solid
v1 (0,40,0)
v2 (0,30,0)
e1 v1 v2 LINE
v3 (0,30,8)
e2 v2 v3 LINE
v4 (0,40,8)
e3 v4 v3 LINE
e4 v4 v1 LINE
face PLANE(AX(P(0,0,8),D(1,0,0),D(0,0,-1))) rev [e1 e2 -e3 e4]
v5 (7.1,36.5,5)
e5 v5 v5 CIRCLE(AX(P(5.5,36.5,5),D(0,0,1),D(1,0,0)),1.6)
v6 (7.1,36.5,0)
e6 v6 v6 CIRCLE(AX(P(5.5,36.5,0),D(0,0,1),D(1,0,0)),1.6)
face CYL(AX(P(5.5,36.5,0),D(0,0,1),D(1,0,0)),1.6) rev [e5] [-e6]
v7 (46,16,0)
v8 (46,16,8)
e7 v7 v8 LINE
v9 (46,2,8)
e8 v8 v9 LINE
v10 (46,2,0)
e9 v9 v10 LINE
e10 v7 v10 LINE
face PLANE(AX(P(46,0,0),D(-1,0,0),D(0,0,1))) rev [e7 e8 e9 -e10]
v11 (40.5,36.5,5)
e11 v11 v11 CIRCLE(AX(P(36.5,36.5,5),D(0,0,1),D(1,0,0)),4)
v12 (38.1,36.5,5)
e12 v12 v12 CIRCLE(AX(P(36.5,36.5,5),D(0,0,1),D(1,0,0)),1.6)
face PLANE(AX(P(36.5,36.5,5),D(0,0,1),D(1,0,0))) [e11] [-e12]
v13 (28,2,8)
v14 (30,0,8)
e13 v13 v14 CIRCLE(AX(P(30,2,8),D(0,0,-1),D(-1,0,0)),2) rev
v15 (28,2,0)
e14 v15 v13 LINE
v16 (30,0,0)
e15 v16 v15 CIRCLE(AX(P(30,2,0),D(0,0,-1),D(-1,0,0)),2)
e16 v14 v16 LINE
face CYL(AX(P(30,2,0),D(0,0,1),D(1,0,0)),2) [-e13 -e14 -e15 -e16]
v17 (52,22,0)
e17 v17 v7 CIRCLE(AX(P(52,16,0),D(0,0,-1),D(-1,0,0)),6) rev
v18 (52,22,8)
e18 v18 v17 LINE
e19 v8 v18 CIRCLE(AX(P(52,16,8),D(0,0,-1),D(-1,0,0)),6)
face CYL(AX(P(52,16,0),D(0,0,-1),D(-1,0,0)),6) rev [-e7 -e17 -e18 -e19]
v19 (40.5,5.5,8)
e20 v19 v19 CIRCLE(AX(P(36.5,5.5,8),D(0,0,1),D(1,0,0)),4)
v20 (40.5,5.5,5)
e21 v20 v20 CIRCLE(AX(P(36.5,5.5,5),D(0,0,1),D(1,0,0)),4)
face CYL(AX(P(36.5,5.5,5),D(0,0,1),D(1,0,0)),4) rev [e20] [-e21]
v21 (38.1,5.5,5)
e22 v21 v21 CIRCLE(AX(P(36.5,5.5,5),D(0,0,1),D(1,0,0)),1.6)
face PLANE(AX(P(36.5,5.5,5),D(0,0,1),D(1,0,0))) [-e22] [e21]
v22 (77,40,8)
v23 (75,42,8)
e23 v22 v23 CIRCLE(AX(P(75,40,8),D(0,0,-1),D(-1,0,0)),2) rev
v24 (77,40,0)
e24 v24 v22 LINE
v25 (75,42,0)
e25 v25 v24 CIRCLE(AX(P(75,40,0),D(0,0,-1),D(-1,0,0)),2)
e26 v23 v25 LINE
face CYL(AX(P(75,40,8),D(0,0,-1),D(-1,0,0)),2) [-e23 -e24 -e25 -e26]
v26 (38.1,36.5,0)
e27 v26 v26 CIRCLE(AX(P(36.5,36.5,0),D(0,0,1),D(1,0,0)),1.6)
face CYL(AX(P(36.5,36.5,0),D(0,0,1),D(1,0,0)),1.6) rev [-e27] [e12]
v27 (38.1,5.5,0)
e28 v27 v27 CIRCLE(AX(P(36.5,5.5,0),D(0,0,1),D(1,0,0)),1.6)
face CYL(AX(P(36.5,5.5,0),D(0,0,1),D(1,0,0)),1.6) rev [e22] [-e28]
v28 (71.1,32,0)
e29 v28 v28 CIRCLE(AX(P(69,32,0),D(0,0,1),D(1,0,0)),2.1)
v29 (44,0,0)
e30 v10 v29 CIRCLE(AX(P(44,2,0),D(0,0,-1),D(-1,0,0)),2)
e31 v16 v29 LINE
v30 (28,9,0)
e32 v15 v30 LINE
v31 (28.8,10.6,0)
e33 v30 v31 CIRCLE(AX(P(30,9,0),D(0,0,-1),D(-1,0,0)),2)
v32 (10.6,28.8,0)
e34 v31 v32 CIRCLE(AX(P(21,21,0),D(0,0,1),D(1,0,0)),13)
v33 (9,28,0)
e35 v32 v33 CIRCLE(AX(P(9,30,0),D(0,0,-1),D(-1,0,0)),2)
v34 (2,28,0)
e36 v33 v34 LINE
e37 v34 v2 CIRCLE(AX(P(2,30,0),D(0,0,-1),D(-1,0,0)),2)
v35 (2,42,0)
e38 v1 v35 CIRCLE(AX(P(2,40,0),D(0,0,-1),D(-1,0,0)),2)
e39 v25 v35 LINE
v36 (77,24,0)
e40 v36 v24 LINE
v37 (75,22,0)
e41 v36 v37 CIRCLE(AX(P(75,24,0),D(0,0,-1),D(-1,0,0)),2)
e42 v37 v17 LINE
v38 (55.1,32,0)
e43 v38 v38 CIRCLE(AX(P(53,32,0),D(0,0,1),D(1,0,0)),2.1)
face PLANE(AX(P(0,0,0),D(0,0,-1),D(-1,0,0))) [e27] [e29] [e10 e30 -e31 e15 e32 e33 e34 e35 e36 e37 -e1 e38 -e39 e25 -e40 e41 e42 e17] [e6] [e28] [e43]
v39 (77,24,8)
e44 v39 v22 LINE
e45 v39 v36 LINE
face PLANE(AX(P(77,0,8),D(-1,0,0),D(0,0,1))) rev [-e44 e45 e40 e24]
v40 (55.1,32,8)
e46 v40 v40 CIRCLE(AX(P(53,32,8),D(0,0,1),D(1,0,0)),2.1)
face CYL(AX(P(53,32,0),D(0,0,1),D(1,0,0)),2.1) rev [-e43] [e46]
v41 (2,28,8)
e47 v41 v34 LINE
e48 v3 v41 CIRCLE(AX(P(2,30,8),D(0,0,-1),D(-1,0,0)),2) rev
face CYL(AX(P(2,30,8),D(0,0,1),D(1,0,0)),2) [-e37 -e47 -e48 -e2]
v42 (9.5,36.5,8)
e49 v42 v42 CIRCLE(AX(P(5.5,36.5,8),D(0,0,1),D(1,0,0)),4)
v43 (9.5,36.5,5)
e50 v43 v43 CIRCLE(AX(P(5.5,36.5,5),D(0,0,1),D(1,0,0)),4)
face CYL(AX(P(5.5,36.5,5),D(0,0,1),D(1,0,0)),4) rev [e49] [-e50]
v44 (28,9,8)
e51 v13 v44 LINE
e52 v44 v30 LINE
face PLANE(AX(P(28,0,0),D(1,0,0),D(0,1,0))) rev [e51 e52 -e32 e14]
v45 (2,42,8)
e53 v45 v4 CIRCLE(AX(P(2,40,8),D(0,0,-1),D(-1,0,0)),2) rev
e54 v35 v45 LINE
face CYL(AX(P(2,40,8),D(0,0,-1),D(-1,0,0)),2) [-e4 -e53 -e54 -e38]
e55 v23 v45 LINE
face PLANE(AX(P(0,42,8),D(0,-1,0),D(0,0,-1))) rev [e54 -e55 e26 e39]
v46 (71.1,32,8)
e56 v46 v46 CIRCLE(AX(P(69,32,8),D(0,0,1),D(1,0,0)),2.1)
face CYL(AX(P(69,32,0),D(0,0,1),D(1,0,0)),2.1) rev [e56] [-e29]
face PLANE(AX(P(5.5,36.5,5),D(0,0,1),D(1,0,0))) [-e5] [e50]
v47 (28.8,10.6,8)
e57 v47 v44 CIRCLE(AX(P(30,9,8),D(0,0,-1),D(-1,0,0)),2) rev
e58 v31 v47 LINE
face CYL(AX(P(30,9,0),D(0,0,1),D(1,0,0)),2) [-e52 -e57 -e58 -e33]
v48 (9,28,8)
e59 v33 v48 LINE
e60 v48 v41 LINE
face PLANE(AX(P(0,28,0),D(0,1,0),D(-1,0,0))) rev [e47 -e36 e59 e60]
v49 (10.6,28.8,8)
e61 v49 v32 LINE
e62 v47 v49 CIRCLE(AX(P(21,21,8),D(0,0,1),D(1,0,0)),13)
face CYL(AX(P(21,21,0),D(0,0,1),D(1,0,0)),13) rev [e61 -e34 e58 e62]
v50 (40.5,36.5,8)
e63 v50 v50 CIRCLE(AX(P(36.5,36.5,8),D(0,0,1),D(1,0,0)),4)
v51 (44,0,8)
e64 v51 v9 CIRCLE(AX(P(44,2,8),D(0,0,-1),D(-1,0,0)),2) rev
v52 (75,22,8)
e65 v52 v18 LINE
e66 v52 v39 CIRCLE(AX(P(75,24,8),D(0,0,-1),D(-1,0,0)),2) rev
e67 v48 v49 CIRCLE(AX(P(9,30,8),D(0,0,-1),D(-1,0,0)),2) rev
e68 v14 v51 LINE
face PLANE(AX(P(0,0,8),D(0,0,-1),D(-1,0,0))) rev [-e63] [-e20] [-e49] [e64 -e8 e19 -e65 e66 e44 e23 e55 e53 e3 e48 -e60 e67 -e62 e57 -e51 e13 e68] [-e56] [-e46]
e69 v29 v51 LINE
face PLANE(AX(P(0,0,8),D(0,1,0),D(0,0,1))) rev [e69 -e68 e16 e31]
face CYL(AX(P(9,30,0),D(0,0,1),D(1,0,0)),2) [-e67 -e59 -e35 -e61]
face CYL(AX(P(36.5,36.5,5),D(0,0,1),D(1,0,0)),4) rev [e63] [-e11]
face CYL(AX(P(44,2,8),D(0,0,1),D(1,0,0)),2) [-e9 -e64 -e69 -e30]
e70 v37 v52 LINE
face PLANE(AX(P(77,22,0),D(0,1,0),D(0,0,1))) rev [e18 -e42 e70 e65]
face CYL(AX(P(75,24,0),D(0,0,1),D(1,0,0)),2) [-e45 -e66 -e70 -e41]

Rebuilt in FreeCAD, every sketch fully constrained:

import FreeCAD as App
import Part
import Sketcher
from FreeCAD import Vector
Q = App.Units.Quantity


def edges_at(feature, points):
    """Names of the edges that pass closest to the given points."""
    edges = feature.Shape.Edges
    near = lambda p: min(range(len(edges)), key=lambda i: edges[i].distToShape(Part.Vertex(*p))[0])
    return sorted({f"Edge{near(p) + 1}" for p in points})

doc = App.newDocument("Part")
body = doc.addObject("PartDesign::Body", "Body")

# Sketch on XY plane
sketch1 = doc.addObject("Sketcher::SketchObject", "Sketch")
body.addObject(sketch1)
sketch1.AttachmentSupport = (doc.XY_Plane, [""])
sketch1.MapMode = "FlatFace"
sketch1.addGeometry(Part.LineSegment(Vector(0, 42, 0), Vector(0, 0, 0)), False)
sketch1.addGeometry(Part.LineSegment(Vector(0, 0, 0), Vector(77, 0, 0)), False)
sketch1.addGeometry(Part.LineSegment(Vector(77, 0, 0), Vector(77, 42, 0)), False)
sketch1.addGeometry(Part.LineSegment(Vector(77, 42, 0), Vector(0, 42, 0)), False)
sketch1.addConstraint(Sketcher.Constraint("Coincident", 0, 2, 1, 1))
sketch1.addConstraint(Sketcher.Constraint("Coincident", 1, 2, 2, 1))
sketch1.addConstraint(Sketcher.Constraint("Coincident", 2, 2, 3, 1))
sketch1.addConstraint(Sketcher.Constraint("Coincident", 3, 2, 0, 1))
sketch1.addConstraint(Sketcher.Constraint("Vertical", 0))
sketch1.addConstraint(Sketcher.Constraint("Horizontal", 1))
sketch1.addConstraint(Sketcher.Constraint("Vertical", 2))
sketch1.addConstraint(Sketcher.Constraint("Horizontal", 3))
sketch1.addConstraint(Sketcher.Constraint("Coincident", 0, 2, -1, 1))
sketch1.addConstraint(Sketcher.Constraint("DistanceX", 1, 1, 1, 2, Q("77 mm")))
sketch1.addConstraint(Sketcher.Constraint("DistanceY", 0, 2, 0, 1, Q("42 mm")))
pad1 = doc.addObject("PartDesign::Pad", "Pad")
body.addObject(pad1)
pad1.Profile = sketch1
pad1.Length = 8

# Sketch on XY plane
sketch2 = doc.addObject("Sketcher::SketchObject", "Sketch001")
body.addObject(sketch2)
sketch2.AttachmentSupport = (doc.XY_Plane, [""])
sketch2.MapMode = "FlatFace"
sketch2.AttachmentOffset = App.Placement(Vector(0, 0, 8), App.Rotation())
sketch2.addGeometry(Part.Circle(Vector(5.5, 36.5, 0), Vector(0, 0, 1), 4), False)
sketch2.addGeometry(Part.Circle(Vector(36.5, 36.5, 0), Vector(0, 0, 1), 4), False)
sketch2.addGeometry(Part.Circle(Vector(36.5, 5.5, 0), Vector(0, 0, 1), 4), False)
sketch2.addConstraint(Sketcher.Constraint("Equal", 0, 1))
sketch2.addConstraint(Sketcher.Constraint("Equal", 1, 2))
sketch2.addConstraint(Sketcher.Constraint("Horizontal", 0, 3, 1, 3))
sketch2.addConstraint(Sketcher.Constraint("Vertical", 1, 3, 2, 3))
sketch2.addConstraint(Sketcher.Constraint("Diameter", 0, Q("8 mm")))
sketch2.addConstraint(Sketcher.Constraint("DistanceX", 0, 3, 1, 3, Q("31 mm")))
sketch2.addConstraint(Sketcher.Constraint("DistanceY", 2, 3, 1, 3, Q("31 mm")))
sketch2.addConstraint(Sketcher.Constraint("DistanceX", -1, 1, 0, 3, Q("5.5 mm")))
sketch2.addConstraint(Sketcher.Constraint("DistanceY", -1, 1, 0, 3, Q("36.5 mm")))
pocket1 = doc.addObject("PartDesign::Pocket", "Pocket")
body.addObject(pocket1)
pocket1.Profile = sketch2
pocket1.Length = 3

# Sketch on XY plane
sketch3 = doc.addObject("Sketcher::SketchObject", "Sketch002")
body.addObject(sketch3)
sketch3.AttachmentSupport = (doc.XY_Plane, [""])
sketch3.MapMode = "FlatFace"
sketch3.AttachmentOffset = App.Placement(Vector(0, 0, 8), App.Rotation())
sketch3.addGeometry(Part.Circle(Vector(21, 21, 0), Vector(0, 0, 1), 13), False)
sketch3.addConstraint(Sketcher.Constraint("Diameter", 0, Q("26 mm")))
sketch3.addConstraint(Sketcher.Constraint("DistanceX", -1, 1, 0, 3, Q("21 mm")))
sketch3.addConstraint(Sketcher.Constraint("DistanceY", -1, 1, 0, 3, Q("21 mm")))
pocket2 = doc.addObject("PartDesign::Pocket", "Pocket001")
body.addObject(pocket2)
pocket2.Profile = sketch3
pocket2.Type = "ThroughAll"

# Sketch on XY plane
sketch4 = doc.addObject("Sketcher::SketchObject", "Sketch003")
body.addObject(sketch4)
sketch4.AttachmentSupport = (doc.XY_Plane, [""])
sketch4.MapMode = "FlatFace"
sketch4.AttachmentOffset = App.Placement(Vector(0, 0, 8), App.Rotation())
sketch4.addGeometry(Part.LineSegment(Vector(0, 28, 0), Vector(0, 0, 0)), False)
sketch4.addGeometry(Part.LineSegment(Vector(0, 0, 0), Vector(28, 0, 0)), False)
sketch4.addGeometry(Part.LineSegment(Vector(28, 0, 0), Vector(28, 28, 0)), False)
sketch4.addGeometry(Part.LineSegment(Vector(28, 28, 0), Vector(0, 28, 0)), False)
sketch4.addConstraint(Sketcher.Constraint("Coincident", 0, 2, 1, 1))
sketch4.addConstraint(Sketcher.Constraint("Coincident", 1, 2, 2, 1))
sketch4.addConstraint(Sketcher.Constraint("Coincident", 2, 2, 3, 1))
sketch4.addConstraint(Sketcher.Constraint("Coincident", 3, 2, 0, 1))
sketch4.addConstraint(Sketcher.Constraint("Vertical", 0))
sketch4.addConstraint(Sketcher.Constraint("Horizontal", 1))
sketch4.addConstraint(Sketcher.Constraint("Vertical", 2))
sketch4.addConstraint(Sketcher.Constraint("Horizontal", 3))
sketch4.addConstraint(Sketcher.Constraint("Coincident", 0, 2, -1, 1))
sketch4.addConstraint(Sketcher.Constraint("Equal", 3, 0))
sketch4.addConstraint(Sketcher.Constraint("DistanceX", 1, 1, 1, 2, Q("28 mm")))
pocket3 = doc.addObject("PartDesign::Pocket", "Pocket002")
body.addObject(pocket3)
pocket3.Profile = sketch4
pocket3.Type = "ThroughAll"

# Sketch on XY plane
sketch5 = doc.addObject("Sketcher::SketchObject", "Sketch004")
body.addObject(sketch5)
sketch5.AttachmentSupport = (doc.XY_Plane, [""])
sketch5.MapMode = "FlatFace"
sketch5.AttachmentOffset = App.Placement(Vector(0, 0, 5), App.Rotation())
sketch5.addGeometry(Part.Circle(Vector(5.5, 36.5, 0), Vector(0, 0, 1), 1.6), False)
sketch5.addGeometry(Part.Circle(Vector(36.5, 36.5, 0), Vector(0, 0, 1), 1.6), False)
sketch5.addGeometry(Part.Circle(Vector(36.5, 5.5, 0), Vector(0, 0, 1), 1.6), False)
sketch5.addConstraint(Sketcher.Constraint("Equal", 0, 1))
sketch5.addConstraint(Sketcher.Constraint("Equal", 1, 2))
sketch5.addConstraint(Sketcher.Constraint("Horizontal", 0, 3, 1, 3))
sketch5.addConstraint(Sketcher.Constraint("Vertical", 1, 3, 2, 3))
sketch5.addConstraint(Sketcher.Constraint("Diameter", 0, Q("3.2 mm")))
sketch5.addConstraint(Sketcher.Constraint("DistanceX", 0, 3, 1, 3, Q("31 mm")))
sketch5.addConstraint(Sketcher.Constraint("DistanceY", 2, 3, 1, 3, Q("31 mm")))
sketch5.addConstraint(Sketcher.Constraint("DistanceX", -1, 1, 0, 3, Q("5.5 mm")))
sketch5.addConstraint(Sketcher.Constraint("DistanceY", -1, 1, 0, 3, Q("36.5 mm")))
pocket4 = doc.addObject("PartDesign::Pocket", "Pocket003")
body.addObject(pocket4)
pocket4.Profile = sketch5
pocket4.Type = "ThroughAll"

# Sketch on XY plane
sketch6 = doc.addObject("Sketcher::SketchObject", "Sketch005")
body.addObject(sketch6)
sketch6.AttachmentSupport = (doc.XY_Plane, [""])
sketch6.MapMode = "FlatFace"
sketch6.AttachmentOffset = App.Placement(Vector(0, 0, 8), App.Rotation())
sketch6.addGeometry(Part.LineSegment(Vector(46, 22, 0), Vector(46, 0, 0)), False)
sketch6.addGeometry(Part.LineSegment(Vector(46, 0, 0), Vector(77, 0, 0)), False)
sketch6.addGeometry(Part.LineSegment(Vector(77, 0, 0), Vector(77, 22, 0)), False)
sketch6.addGeometry(Part.LineSegment(Vector(77, 22, 0), Vector(46, 22, 0)), False)
sketch6.addConstraint(Sketcher.Constraint("Coincident", 0, 2, 1, 1))
sketch6.addConstraint(Sketcher.Constraint("Coincident", 1, 2, 2, 1))
sketch6.addConstraint(Sketcher.Constraint("Coincident", 2, 2, 3, 1))
sketch6.addConstraint(Sketcher.Constraint("Coincident", 3, 2, 0, 1))
sketch6.addConstraint(Sketcher.Constraint("Vertical", 0))
sketch6.addConstraint(Sketcher.Constraint("Horizontal", 1))
sketch6.addConstraint(Sketcher.Constraint("Vertical", 2))
sketch6.addConstraint(Sketcher.Constraint("Horizontal", 3))
sketch6.addConstraint(Sketcher.Constraint("PointOnObject", 0, 2, -1))
sketch6.addConstraint(Sketcher.Constraint("DistanceX", 1, 1, 1, 2, Q("31 mm")))
sketch6.addConstraint(Sketcher.Constraint("DistanceY", 0, 2, 0, 1, Q("22 mm")))
sketch6.addConstraint(Sketcher.Constraint("DistanceX", -1, 1, 0, 2, Q("46 mm")))
pocket5 = doc.addObject("PartDesign::Pocket", "Pocket004")
body.addObject(pocket5)
pocket5.Profile = sketch6
pocket5.Type = "ThroughAll"

# Sketch on XY plane
sketch7 = doc.addObject("Sketcher::SketchObject", "Sketch006")
body.addObject(sketch7)
sketch7.AttachmentSupport = (doc.XY_Plane, [""])
sketch7.MapMode = "FlatFace"
sketch7.AttachmentOffset = App.Placement(Vector(0, 0, 8), App.Rotation())
sketch7.addGeometry(Part.Circle(Vector(53, 32, 0), Vector(0, 0, 1), 2.1), False)
sketch7.addGeometry(Part.Circle(Vector(69, 32, 0), Vector(0, 0, 1), 2.1), False)
sketch7.addConstraint(Sketcher.Constraint("Equal", 0, 1))
sketch7.addConstraint(Sketcher.Constraint("Horizontal", 0, 3, 1, 3))
sketch7.addConstraint(Sketcher.Constraint("Diameter", 0, Q("4.2 mm")))
sketch7.addConstraint(Sketcher.Constraint("DistanceX", -1, 1, 0, 3, Q("53 mm")))
sketch7.addConstraint(Sketcher.Constraint("DistanceY", -1, 1, 0, 3, Q("32 mm")))
sketch7.addConstraint(Sketcher.Constraint("DistanceX", -1, 1, 1, 3, Q("69 mm")))
pocket6 = doc.addObject("PartDesign::Pocket", "Pocket005")
body.addObject(pocket6)
pocket6.Profile = sketch7
pocket6.Type = "ThroughAll"
doc.recompute()

fillet = doc.addObject("PartDesign::Fillet", "Fillet")
body.addObject(fillet)
fillet.Base = (pocket6, edges_at(pocket6, [(46, 22, 4)]))
fillet.Radius = 6
doc.recompute()

fillet2 = doc.addObject("PartDesign::Fillet", "Fillet001")
body.addObject(fillet2)
fillet2.Base = (fillet, edges_at(fillet, [
    (28, 10.046, 4),
    (10.046, 28, 4),
    (0, 28, 4),
    (28, 0, 4),
    (77, 22, 4),
    (46, 0, 4),
    (0, 42, 4),
    (77, 42, 4),
]))
fillet2.Radius = 2

doc.recompute()
